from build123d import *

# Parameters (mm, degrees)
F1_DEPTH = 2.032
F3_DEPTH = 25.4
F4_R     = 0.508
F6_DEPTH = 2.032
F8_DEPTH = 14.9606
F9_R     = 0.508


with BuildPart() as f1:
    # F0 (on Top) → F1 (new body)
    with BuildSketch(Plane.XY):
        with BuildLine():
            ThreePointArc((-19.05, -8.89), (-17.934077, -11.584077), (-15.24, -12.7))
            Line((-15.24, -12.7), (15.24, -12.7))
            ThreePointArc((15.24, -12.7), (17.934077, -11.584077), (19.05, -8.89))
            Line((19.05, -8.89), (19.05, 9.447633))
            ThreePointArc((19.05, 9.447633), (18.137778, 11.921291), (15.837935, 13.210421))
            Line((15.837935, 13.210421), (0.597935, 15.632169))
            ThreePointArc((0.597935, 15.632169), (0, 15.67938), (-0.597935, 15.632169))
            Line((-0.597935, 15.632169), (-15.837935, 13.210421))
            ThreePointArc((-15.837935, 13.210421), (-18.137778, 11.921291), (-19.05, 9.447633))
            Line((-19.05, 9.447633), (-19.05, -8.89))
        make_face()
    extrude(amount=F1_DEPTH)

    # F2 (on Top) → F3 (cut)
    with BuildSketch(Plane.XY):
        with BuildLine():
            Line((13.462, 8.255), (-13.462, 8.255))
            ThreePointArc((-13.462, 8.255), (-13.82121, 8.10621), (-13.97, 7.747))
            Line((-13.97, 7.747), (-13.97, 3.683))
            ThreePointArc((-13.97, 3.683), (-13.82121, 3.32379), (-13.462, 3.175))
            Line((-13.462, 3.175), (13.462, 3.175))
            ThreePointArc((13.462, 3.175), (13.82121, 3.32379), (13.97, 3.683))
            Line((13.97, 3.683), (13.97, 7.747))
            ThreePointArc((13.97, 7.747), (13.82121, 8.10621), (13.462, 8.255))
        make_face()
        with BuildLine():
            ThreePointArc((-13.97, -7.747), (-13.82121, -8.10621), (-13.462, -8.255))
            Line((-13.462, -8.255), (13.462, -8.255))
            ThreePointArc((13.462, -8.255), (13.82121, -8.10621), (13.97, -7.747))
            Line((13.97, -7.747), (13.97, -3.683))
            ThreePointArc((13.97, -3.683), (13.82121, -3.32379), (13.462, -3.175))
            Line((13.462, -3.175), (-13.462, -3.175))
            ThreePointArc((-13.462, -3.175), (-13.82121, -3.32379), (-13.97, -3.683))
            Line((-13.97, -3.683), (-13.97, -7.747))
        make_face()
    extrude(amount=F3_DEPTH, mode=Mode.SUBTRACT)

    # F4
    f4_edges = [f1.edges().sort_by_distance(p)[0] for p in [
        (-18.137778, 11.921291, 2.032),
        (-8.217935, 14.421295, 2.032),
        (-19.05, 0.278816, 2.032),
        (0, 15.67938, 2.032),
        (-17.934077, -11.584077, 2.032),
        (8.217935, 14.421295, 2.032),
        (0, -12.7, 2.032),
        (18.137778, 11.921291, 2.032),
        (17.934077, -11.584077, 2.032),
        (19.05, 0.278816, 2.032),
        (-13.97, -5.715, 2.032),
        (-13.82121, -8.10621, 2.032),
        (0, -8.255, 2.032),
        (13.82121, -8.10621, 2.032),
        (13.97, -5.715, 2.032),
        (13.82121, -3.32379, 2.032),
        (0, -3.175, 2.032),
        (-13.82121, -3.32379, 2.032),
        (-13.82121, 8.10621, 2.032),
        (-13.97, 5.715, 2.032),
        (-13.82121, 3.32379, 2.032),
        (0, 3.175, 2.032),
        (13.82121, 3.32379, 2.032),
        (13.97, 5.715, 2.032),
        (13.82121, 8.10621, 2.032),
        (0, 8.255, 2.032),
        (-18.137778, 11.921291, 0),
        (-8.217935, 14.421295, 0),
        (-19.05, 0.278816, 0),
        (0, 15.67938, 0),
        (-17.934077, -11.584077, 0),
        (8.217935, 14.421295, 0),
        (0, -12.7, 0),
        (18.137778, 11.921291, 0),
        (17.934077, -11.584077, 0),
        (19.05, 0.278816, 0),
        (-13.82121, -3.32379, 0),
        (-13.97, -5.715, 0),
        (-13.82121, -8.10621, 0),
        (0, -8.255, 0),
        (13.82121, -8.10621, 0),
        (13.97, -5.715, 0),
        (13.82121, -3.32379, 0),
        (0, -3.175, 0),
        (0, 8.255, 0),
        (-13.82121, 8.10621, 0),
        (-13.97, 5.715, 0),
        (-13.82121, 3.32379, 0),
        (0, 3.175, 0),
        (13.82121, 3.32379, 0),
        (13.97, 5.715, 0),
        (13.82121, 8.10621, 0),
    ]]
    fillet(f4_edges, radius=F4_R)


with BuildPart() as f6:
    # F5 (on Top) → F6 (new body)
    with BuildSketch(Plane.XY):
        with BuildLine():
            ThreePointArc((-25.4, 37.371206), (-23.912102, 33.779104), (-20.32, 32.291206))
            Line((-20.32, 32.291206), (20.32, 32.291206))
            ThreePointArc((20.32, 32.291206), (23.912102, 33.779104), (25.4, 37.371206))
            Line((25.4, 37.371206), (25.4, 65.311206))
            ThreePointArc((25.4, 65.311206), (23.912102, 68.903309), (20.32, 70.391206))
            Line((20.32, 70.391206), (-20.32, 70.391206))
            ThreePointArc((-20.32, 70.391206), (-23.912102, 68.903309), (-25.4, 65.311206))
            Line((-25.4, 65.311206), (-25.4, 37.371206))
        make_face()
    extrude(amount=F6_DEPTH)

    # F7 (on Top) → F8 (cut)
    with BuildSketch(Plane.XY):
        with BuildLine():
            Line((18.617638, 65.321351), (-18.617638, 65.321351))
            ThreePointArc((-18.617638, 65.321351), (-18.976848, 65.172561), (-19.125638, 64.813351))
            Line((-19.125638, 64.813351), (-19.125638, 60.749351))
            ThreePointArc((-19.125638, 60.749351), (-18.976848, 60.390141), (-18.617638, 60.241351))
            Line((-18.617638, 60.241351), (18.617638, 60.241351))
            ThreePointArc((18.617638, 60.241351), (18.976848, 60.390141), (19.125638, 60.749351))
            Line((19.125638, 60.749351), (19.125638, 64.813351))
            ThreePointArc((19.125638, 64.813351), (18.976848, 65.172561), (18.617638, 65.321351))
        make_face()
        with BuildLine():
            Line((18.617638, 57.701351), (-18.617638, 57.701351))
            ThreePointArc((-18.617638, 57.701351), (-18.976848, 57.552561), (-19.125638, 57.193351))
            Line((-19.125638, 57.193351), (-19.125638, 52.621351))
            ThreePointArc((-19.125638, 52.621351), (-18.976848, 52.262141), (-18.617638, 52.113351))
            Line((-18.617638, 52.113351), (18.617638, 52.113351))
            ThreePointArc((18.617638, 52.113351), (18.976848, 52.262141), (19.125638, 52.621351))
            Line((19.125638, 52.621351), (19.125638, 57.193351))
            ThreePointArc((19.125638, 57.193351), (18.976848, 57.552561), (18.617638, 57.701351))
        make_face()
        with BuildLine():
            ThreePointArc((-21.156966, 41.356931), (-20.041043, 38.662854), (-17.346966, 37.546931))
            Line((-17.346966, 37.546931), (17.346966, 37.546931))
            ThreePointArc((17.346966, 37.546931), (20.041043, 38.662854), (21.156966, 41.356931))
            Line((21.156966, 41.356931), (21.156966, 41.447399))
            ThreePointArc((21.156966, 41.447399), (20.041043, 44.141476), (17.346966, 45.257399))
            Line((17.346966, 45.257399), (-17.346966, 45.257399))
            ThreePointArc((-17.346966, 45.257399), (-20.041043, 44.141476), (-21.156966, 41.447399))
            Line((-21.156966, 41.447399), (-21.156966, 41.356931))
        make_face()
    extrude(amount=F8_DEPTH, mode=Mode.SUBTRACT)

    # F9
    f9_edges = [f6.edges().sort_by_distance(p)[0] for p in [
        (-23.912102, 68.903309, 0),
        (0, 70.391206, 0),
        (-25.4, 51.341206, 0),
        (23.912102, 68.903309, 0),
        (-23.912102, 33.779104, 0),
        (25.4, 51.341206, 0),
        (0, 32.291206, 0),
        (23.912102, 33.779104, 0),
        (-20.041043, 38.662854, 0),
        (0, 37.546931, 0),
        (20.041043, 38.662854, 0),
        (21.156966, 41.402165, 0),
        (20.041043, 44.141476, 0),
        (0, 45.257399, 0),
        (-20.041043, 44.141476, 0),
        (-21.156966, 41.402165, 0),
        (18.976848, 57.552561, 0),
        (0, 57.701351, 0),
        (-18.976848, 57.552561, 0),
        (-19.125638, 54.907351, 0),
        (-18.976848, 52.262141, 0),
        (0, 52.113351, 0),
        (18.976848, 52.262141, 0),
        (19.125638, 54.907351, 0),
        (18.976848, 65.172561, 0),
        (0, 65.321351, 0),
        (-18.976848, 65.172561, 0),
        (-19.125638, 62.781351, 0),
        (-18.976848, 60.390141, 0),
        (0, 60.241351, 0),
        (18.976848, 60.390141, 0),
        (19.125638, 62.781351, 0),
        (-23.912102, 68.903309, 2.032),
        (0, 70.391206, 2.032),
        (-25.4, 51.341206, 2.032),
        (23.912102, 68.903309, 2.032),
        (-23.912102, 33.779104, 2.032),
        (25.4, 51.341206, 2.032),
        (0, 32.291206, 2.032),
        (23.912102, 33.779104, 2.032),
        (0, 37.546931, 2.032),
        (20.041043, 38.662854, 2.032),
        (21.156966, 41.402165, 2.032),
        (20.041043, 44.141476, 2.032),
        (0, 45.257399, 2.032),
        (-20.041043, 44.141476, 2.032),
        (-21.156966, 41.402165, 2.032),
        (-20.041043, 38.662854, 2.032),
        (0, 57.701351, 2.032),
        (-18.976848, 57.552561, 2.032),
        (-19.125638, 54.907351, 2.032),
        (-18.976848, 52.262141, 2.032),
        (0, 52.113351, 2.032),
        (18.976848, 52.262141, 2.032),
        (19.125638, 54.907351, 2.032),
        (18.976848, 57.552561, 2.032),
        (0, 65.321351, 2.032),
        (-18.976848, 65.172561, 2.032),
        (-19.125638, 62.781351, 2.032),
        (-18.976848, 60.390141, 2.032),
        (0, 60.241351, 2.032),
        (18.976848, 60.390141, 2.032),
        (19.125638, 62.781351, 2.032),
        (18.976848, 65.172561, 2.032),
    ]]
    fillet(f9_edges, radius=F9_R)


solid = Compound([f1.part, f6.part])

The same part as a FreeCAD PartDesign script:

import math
import FreeCAD as App
import Part
import Sketcher

V = App.Vector
Q = App.Units.Quantity


def edges_at(feature, points):
    """Names of the edges that pass closest to the given points."""
    edges = feature.Shape.Edges
    near = lambda p: min(range(len(edges)), key=lambda i: edges[i].distToShape(Part.Vertex(*p))[0])
    return sorted({f"Edge{near(p) + 1}" for p in points})

doc = App.newDocument("Part")
body = doc.addObject("PartDesign::Body", "Body")

# Sketch on XY plane
sketch1 = body.newObject("Sketcher::SketchObject", "Sketch")
sketch1.AttachmentSupport = (doc.getObject("XY_Plane"), [""])
sketch1.MapMode = "FlatFace"
sketch1.addGeometry(Part.ArcOfCircle(Part.Circle(V(-15.2, -8.9, 0), V(0, 0, 1), 3.8), math.radians(180), math.radians(270)), False)
sketch1.addGeometry(Part.LineSegment(V(-15.2, -12.7, 0), V(15.2, -12.7, 0)), False)
sketch1.addGeometry(Part.ArcOfCircle(Part.Circle(V(15.2, -8.9, 0), V(0, 0, 1), 3.8), math.radians(-90), math.radians(0)), False)
sketch1.addGeometry(Part.LineSegment(V(19.1, -8.9, 0), V(19.1, 9.4, 0)), False)
sketch1.addGeometry(Part.ArcOfCircle(Part.Circle(V(15.2, 9.4, 0), V(0, 0, 1), 3.8), math.radians(0), math.radians(81)), False)
sketch1.addGeometry(Part.LineSegment(V(15.8, 13.2, 0), V(0.6, 15.6, 0)), False)
sketch1.addGeometry(Part.ArcOfCircle(Part.Circle(V(0, 11.9, 0), V(0, 0, 1), 3.8), math.radians(80.97), math.radians(99.03)), False)
sketch1.addGeometry(Part.LineSegment(V(-0.6, 15.6, 0), V(-15.8, 13.2, 0)), False)
sketch1.addGeometry(Part.ArcOfCircle(Part.Circle(V(-15.2, 9.4, 0), V(0, 0, 1), 3.8), math.radians(99), math.radians(180)), False)
sketch1.addGeometry(Part.LineSegment(V(-19.1, 9.4, 0), V(-19.1, -8.9, 0)), False)
sketch1.addConstraint(Sketcher.Constraint("Tangent", 0, 2, 1, 1))
sketch1.addConstraint(Sketcher.Constraint("Tangent", 1, 2, 2, 1))
sketch1.addConstraint(Sketcher.Constraint("Tangent", 2, 2, 3, 1))
sketch1.addConstraint(Sketcher.Constraint("Tangent", 3, 2, 4, 1))
sketch1.addConstraint(Sketcher.Constraint("Tangent", 4, 2, 5, 1))
sketch1.addConstraint(Sketcher.Constraint("Coincident", 5, 2, 6, 1))
sketch1.addConstraint(Sketcher.Constraint("Coincident", 6, 2, 7, 1))
sketch1.addConstraint(Sketcher.Constraint("Tangent", 7, 2, 8, 1))
sketch1.addConstraint(Sketcher.Constraint("Tangent", 8, 2, 9, 1))
sketch1.addConstraint(Sketcher.Constraint("Tangent", 9, 2, 0, 1))
sketch1.addConstraint(Sketcher.Constraint("Horizontal", 1))
sketch1.addConstraint(Sketcher.Constraint("Vertical", 3))
sketch1.addConstraint(Sketcher.Constraint("Vertical", 9))
sketch1.addConstraint(Sketcher.Constraint("Equal", 0, 2))
sketch1.addConstraint(Sketcher.Constraint("Equal", 2, 4))
sketch1.addConstraint(Sketcher.Constraint("Equal", 4, 8))
sketch1.addConstraint(Sketcher.Constraint("Symmetric", 4, 3, 8, 3, -2))
sketch1.addConstraint(Sketcher.Constraint("Symmetric", 5, 2, 6, 2, -2))
sketch1.addConstraint(Sketcher.Constraint("Radius", 0, Q("0.15 in")))
sketch1.addConstraint(Sketcher.Constraint("DistanceX", 1, 1, 1, 2, Q("1.2 in")))
sketch1.addConstraint(Sketcher.Constraint("DistanceY", 0, 2, -1, 1, Q("0.5 in")))
sketch1.addConstraint(Sketcher.Constraint("DistanceX", 5, 2, 4, 2, Q("0.6 in")))
sketch1.addConstraint(Sketcher.Constraint("Radius", 6, 3.810078))
sketch1.addConstraint(Sketcher.Constraint("DistanceY", 6, 3, 4, 2, Q("0.0527999 in")))
sketch1.addConstraint(Sketcher.Constraint("DistanceY", 3, 1, 3, 2, 18.337633))
pad1 = body.newObject("PartDesign::Pad", "Pad")
pad1.Profile = sketch1
pad1.Length = Q("0.08 in")

# Sketch on XY plane
sketch2 = body.newObject("Sketcher::SketchObject", "Sketch001")
sketch2.AttachmentSupport = (doc.getObject("XY_Plane"), [""])
sketch2.MapMode = "FlatFace"
sketch2.addGeometry(Part.LineSegment(V(13.5, 8.3, 0), V(-13.5, 8.3, 0)), False)
sketch2.addGeometry(Part.ArcOfCircle(Part.Circle(V(-13.5, 7.7, 0), V(0, 0, 1), 0.5), math.radians(90), math.radians(180)), False)
sketch2.addGeometry(Part.LineSegment(V(-14, 7.7, 0), V(-14, 3.7, 0)), False)
sketch2.addGeometry(Part.ArcOfCircle(Part.Circle(V(-13.5, 3.7, 0), V(0, 0, 1), 0.5), math.radians(-180), math.radians(-90)), False)
sketch2.addGeometry(Part.LineSegment(V(-13.5, 3.2, 0), V(13.5, 3.2, 0)), False)
sketch2.addGeometry(Part.ArcOfCircle(Part.Circle(V(13.5, 3.7, 0), V(0, 0, 1), 0.5), math.radians(-90), math.radians(0)), False)
sketch2.addGeometry(Part.LineSegment(V(14, 3.7, 0), V(14, 7.7, 0)), False)
sketch2.addGeometry(Part.ArcOfCircle(Part.Circle(V(13.5, 7.7, 0), V(0, 0, 1), 0.5), math.radians(0), math.radians(90)), False)
sketch2.addGeometry(Part.ArcOfCircle(Part.Circle(V(-13.5, -7.7, 0), V(0, 0, 1), 0.5), math.radians(-180), math.radians(-90)), False)
sketch2.addGeometry(Part.LineSegment(V(-13.5, -8.3, 0), V(13.5, -8.3, 0)), False)
sketch2.addGeometry(Part.ArcOfCircle(Part.Circle(V(13.5, -7.7, 0), V(0, 0, 1), 0.5), math.radians(-90), math.radians(0)), False)
sketch2.addGeometry(Part.LineSegment(V(14, -7.7, 0), V(14, -3.7, 0)), False)
sketch2.addGeometry(Part.ArcOfCircle(Part.Circle(V(13.5, -3.7, 0), V(0, 0, 1), 0.5), math.radians(0), math.radians(90)), False)
sketch2.addGeometry(Part.LineSegment(V(13.5, -3.2, 0), V(-13.5, -3.2, 0)), False)
sketch2.addGeometry(Part.ArcOfCircle(Part.Circle(V(-13.5, -3.7, 0), V(0, 0, 1), 0.5), math.radians(90), math.radians(180)), False)
sketch2.addGeometry(Part.LineSegment(V(-14, -3.7, 0), V(-14, -7.7, 0)), False)
sketch2.addConstraint(Sketcher.Constraint("Tangent", 0, 2, 1, 1))
sketch2.addConstraint(Sketcher.Constraint("Tangent", 1, 2, 2, 1))
sketch2.addConstraint(Sketcher.Constraint("Tangent", 2, 2, 3, 1))
sketch2.addConstraint(Sketcher.Constraint("Tangent", 3, 2, 4, 1))
sketch2.addConstraint(Sketcher.Constraint("Tangent", 4, 2, 5, 1))
sketch2.addConstraint(Sketcher.Constraint("Tangent", 5, 2, 6, 1))
sketch2.addConstraint(Sketcher.Constraint("Tangent", 6, 2, 7, 1))
sketch2.addConstraint(Sketcher.Constraint("Tangent", 7, 2, 0, 1))
sketch2.addConstraint(Sketcher.Constraint("Tangent", 8, 2, 9, 1))
sketch2.addConstraint(Sketcher.Constraint("Tangent", 9, 2, 10, 1))
sketch2.addConstraint(Sketcher.Constraint("Tangent", 10, 2, 11, 1))
sketch2.addConstraint(Sketcher.Constraint("Tangent", 11, 2, 12, 1))
sketch2.addConstraint(Sketcher.Constraint("Tangent", 12, 2, 13, 1))
sketch2.addConstraint(Sketcher.Constraint("Tangent", 13, 2, 14, 1))
sketch2.addConstraint(Sketcher.Constraint("Tangent", 14, 2, 15, 1))
sketch2.addConstraint(Sketcher.Constraint("Tangent", 15, 2, 8, 1))
sketch2.addConstraint(Sketcher.Constraint("Horizontal", 0))
sketch2.addConstraint(Sketcher.Constraint("Vertical", 2))
sketch2.addConstraint(Sketcher.Constraint("Horizontal", 4))
sketch2.addConstraint(Sketcher.Constraint("Vertical", 6))
sketch2.addConstraint(Sketcher.Constraint("Horizontal", 9))
sketch2.addConstraint(Sketcher.Constraint("Vertical", 11))
sketch2.addConstraint(Sketcher.Constraint("Horizontal", 13))
sketch2.addConstraint(Sketcher.Constraint("Vertical", 15))
sketch2.addConstraint(Sketcher.Constraint("Equal", 1, 3))
sketch2.addConstraint(Sketcher.Constraint("Equal", 3, 5))
sketch2.addConstraint(Sketcher.Constraint("Equal", 5, 7))
sketch2.addConstraint(Sketcher.Constraint("Equal", 7, 8))
sketch2.addConstraint(Sketcher.Constraint("Equal", 8, 10))
sketch2.addConstraint(Sketcher.Constraint("Equal", 10, 12))
sketch2.addConstraint(Sketcher.Constraint("Equal", 12, 14))
sketch2.addConstraint(Sketcher.Constraint("Symmetric", 7, 3, 8, 3, -1, 1))
sketch2.addConstraint(Sketcher.Constraint("Symmetric", 3, 3, 12, 3, -1, 1))
sketch2.addConstraint(Sketcher.Constraint("Vertical", 3, 3, 8, 3))
sketch2.addConstraint(Sketcher.Constraint("Radius", 1, Q("0.02 in")))
sketch2.addConstraint(Sketcher.Constraint("DistanceX", 0, 2, 0, 1, Q("1.06 in")))
sketch2.addConstraint(Sketcher.Constraint("DistanceY", 2, 2, 2, 1, Q("0.16 in")))
sketch2.addConstraint(Sketcher.Constraint("DistanceY", 8, 3, 3, 3, Q("0.45 in")))
pocket1 = body.newObject("PartDesign::Pocket", "Pocket")
pocket1.Profile = sketch2
pocket1.Length = Q("1 in")
pocket1.Reversed = True
doc.recompute()

fillet = body.newObject("PartDesign::Fillet", "Fillet")
fillet.Base = (pocket1, edges_at(pocket1, [
    (-18.138, 11.921, 2.032),
    (-8.218, 14.421, 2.032),
    (-19.05, 0.279, 2.032),
    (0, 15.679, 2.032),
    (-17.934, -11.584, 2.032),
    (8.218, 14.421, 2.032),
    (0, -12.7, 2.032),
    (18.138, 11.921, 2.032),
    (17.934, -11.584, 2.032),
    (19.05, 0.279, 2.032),
    (-13.97, -5.715, 2.032),
    (-13.821, -8.106, 2.032),
    (0, -8.255, 2.032),
    (13.821, -8.106, 2.032),
    (13.97, -5.715, 2.032),
    (13.821, -3.324, 2.032),
    (0, -3.175, 2.032),
    (-13.821, -3.324, 2.032),
    (-13.821, 8.106, 2.032),
    (-13.97, 5.715, 2.032),
    (-13.821, 3.324, 2.032),
    (0, 3.175, 2.032),
    (13.821, 3.324, 2.032),
    (13.97, 5.715, 2.032),
    (13.821, 8.106, 2.032),
    (0, 8.255, 2.032),
    (-18.138, 11.921, 0),
    (-8.218, 14.421, 0),
    (-19.05, 0.279, 0),
    (0, 15.679, 0),
    (-17.934, -11.584, 0),
    (8.218, 14.421, 0),
    (0, -12.7, 0),
    (18.138, 11.921, 0),
    (17.934, -11.584, 0),
    (19.05, 0.279, 0),
    (-13.821, -3.324, 0),
    (-13.97, -5.715, 0),
    (-13.821, -8.106, 0),
    (0, -8.255, 0),
    (13.821, -8.106, 0),
    (13.97, -5.715, 0),
    (13.821, -3.324, 0),
    (0, -3.175, 0),
    (0, 8.255, 0),
    (-13.821, 8.106, 0),
    (-13.97, 5.715, 0),
    (-13.821, 3.324, 0),
    (0, 3.175, 0),
    (13.821, 3.324, 0),
    (13.97, 5.715, 0),
    (13.821, 8.106, 0),
]))
fillet.Radius = Q("0.02 in")
body2 = doc.addObject("PartDesign::Body", "Body001")

# Sketch on XY plane
sketch3 = body2.newObject("Sketcher::SketchObject", "Sketch002")
sketch3.AttachmentSupport = (doc.getObject("XY_Plane001"), [""])
sketch3.MapMode = "FlatFace"
sketch3.addGeometry(Part.ArcOfCircle(Part.Circle(V(-20, 37, 0), V(0, 0, 1), 5), math.radians(-180), math.radians(-90)), False)
sketch3.addGeometry(Part.LineSegment(V(-20, 32, 0), V(20, 32, 0)), False)
sketch3.addGeometry(Part.ArcOfCircle(Part.Circle(V(20, 37, 0), V(0, 0, 1), 5), math.radians(-90), math.radians(0)), False)
sketch3.addGeometry(Part.LineSegment(V(25, 37, 0), V(25, 65, 0)), False)
sketch3.addGeometry(Part.ArcOfCircle(Part.Circle(V(20, 65, 0), V(0, 0, 1), 5), math.radians(0), math.radians(90)), False)
sketch3.addGeometry(Part.LineSegment(V(20, 70, 0), V(-20, 70, 0)), False)
sketch3.addGeometry(Part.ArcOfCircle(Part.Circle(V(-20, 65, 0), V(0, 0, 1), 5), math.radians(90), math.radians(180)), False)
sketch3.addGeometry(Part.LineSegment(V(-25, 65, 0), V(-25, 37, 0)), False)
sketch3.addConstraint(Sketcher.Constraint("Tangent", 0, 2, 1, 1))
sketch3.addConstraint(Sketcher.Constraint("Tangent", 1, 2, 2, 1))
sketch3.addConstraint(Sketcher.Constraint("Tangent", 2, 2, 3, 1))
sketch3.addConstraint(Sketcher.Constraint("Tangent", 3, 2, 4, 1))
sketch3.addConstraint(Sketcher.Constraint("Tangent", 4, 2, 5, 1))
sketch3.addConstraint(Sketcher.Constraint("Tangent", 5, 2, 6, 1))
sketch3.addConstraint(Sketcher.Constraint("Tangent", 6, 2, 7, 1))
sketch3.addConstraint(Sketcher.Constraint("Tangent", 7, 2, 0, 1))
sketch3.addConstraint(Sketcher.Constraint("Horizontal", 1))
sketch3.addConstraint(Sketcher.Constraint("Vertical", 3))
sketch3.addConstraint(Sketcher.Constraint("Horizontal", 5))
sketch3.addConstraint(Sketcher.Constraint("Vertical", 7))
sketch3.addConstraint(Sketcher.Constraint("Equal", 0, 2))
sketch3.addConstraint(Sketcher.Constraint("Equal", 2, 4))
sketch3.addConstraint(Sketcher.Constraint("Equal", 4, 6))
sketch3.addConstraint(Sketcher.Constraint("Radius", 0, Q("0.2000001 in")))
sketch3.addConstraint(Sketcher.Constraint("DistanceX", 1, 1, 1, 2, Q("1.6 in")))
sketch3.addConstraint(Sketcher.Constraint("DistanceY", 3, 1, 3, 2, Q("1.1 in")))
sketch3.addConstraint(Sketcher.Constraint("DistanceX", -1, 1, 2, 2, Q("1 in")))
sketch3.addConstraint(Sketcher.Constraint("DistanceY", -1, 1, 0, 3, 37.371208))
pad2 = body2.newObject("PartDesign::Pad", "Pad001")
pad2.Profile = sketch3
pad2.Length = Q("0.08 in")

# Sketch on XY plane
sketch4 = body2.newObject("Sketcher::SketchObject", "Sketch003")
sketch4.AttachmentSupport = (doc.getObject("XY_Plane001"), [""])
sketch4.MapMode = "FlatFace"
sketch4.addGeometry(Part.LineSegment(V(18.62, 65.32, 0), V(-18.62, 65.32, 0)), False)
sketch4.addGeometry(Part.ArcOfCircle(Part.Circle(V(-18.62, 64.81, 0), V(0, 0, 1), 0.51), math.radians(90), math.radians(180)), False)
sketch4.addGeometry(Part.LineSegment(V(-19.13, 64.81, 0), V(-19.13, 60.75, 0)), False)
sketch4.addGeometry(Part.ArcOfCircle(Part.Circle(V(-18.62, 60.75, 0), V(0, 0, 1), 0.51), math.radians(-180), math.radians(-90)), False)
sketch4.addGeometry(Part.LineSegment(V(-18.62, 60.24, 0), V(18.62, 60.24, 0)), False)
sketch4.addGeometry(Part.ArcOfCircle(Part.Circle(V(18.62, 60.75, 0), V(0, 0, 1), 0.51), math.radians(-90), math.radians(0)), False)
sketch4.addGeometry(Part.LineSegment(V(19.13, 60.75, 0), V(19.13, 64.81, 0)), False)
sketch4.addGeometry(Part.ArcOfCircle(Part.Circle(V(18.62, 64.81, 0), V(0, 0, 1), 0.51), math.radians(0), math.radians(90)), False)
sketch4.addGeometry(Part.LineSegment(V(18.62, 57.7, 0), V(-18.62, 57.7, 0)), False)
sketch4.addGeometry(Part.ArcOfCircle(Part.Circle(V(-18.62, 57.19, 0), V(0, 0, 1), 0.51), math.radians(90), math.radians(180)), False)
sketch4.addGeometry(Part.LineSegment(V(-19.13, 57.19, 0), V(-19.13, 52.62, 0)), False)
sketch4.addGeometry(Part.ArcOfCircle(Part.Circle(V(-18.62, 52.62, 0), V(0, 0, 1), 0.51), math.radians(-180), math.radians(-90)), False)
sketch4.addGeometry(Part.LineSegment(V(-18.62, 52.11, 0), V(18.62, 52.11, 0)), False)
sketch4.addGeometry(Part.ArcOfCircle(Part.Circle(V(18.62, 52.62, 0), V(0, 0, 1), 0.51), math.radians(-90), math.radians(0)), False)
sketch4.addGeometry(Part.LineSegment(V(19.13, 52.62, 0), V(19.13, 57.19, 0)), False)
sketch4.addGeometry(Part.ArcOfCircle(Part.Circle(V(18.62, 57.19, 0), V(0, 0, 1), 0.51), math.radians(0), math.radians(90)), False)
sketch4.addGeometry(Part.ArcOfCircle(Part.Circle(V(-17.35, 41.36, 0), V(0, 0, 1), 3.81), math.radians(180), math.radians(270)), False)
sketch4.addGeometry(Part.LineSegment(V(-17.35, 37.55, 0), V(17.35, 37.55, 0)), False)
sketch4.addGeometry(Part.ArcOfCircle(Part.Circle(V(17.35, 41.36, 0), V(0, 0, 1), 3.81), math.radians(-90), math.radians(0)), False)
sketch4.addGeometry(Part.LineSegment(V(21.16, 41.36, 0), V(21.16, 41.45, 0)), False)
sketch4.addGeometry(Part.ArcOfCircle(Part.Circle(V(17.35, 41.45, 0), V(0, 0, 1), 3.81), math.radians(0), math.radians(90)), False)
sketch4.addGeometry(Part.LineSegment(V(17.35, 45.26, 0), V(-17.35, 45.26, 0)), False)
sketch4.addGeometry(Part.ArcOfCircle(Part.Circle(V(-17.35, 41.45, 0), V(0, 0, 1), 3.81), math.radians(90), math.radians(180)), False)
sketch4.addGeometry(Part.LineSegment(V(-21.16, 41.45, 0), V(-21.16, 41.36, 0)), False)
sketch4.addConstraint(Sketcher.Constraint("Tangent", 0, 2, 1, 1))
sketch4.addConstraint(Sketcher.Constraint("Tangent", 1, 2, 2, 1))
sketch4.addConstraint(Sketcher.Constraint("Tangent", 2, 2, 3, 1))
sketch4.addConstraint(Sketcher.Constraint("Tangent", 3, 2, 4, 1))
sketch4.addConstraint(Sketcher.Constraint("Tangent", 4, 2, 5, 1))
sketch4.addConstraint(Sketcher.Constraint("Tangent", 5, 2, 6, 1))
sketch4.addConstraint(Sketcher.Constraint("Tangent", 6, 2, 7, 1))
sketch4.addConstraint(Sketcher.Constraint("Tangent", 7, 2, 0, 1))
sketch4.addConstraint(Sketcher.Constraint("Tangent", 8, 2, 9, 1))
sketch4.addConstraint(Sketcher.Constraint("Tangent", 9, 2, 10, 1))
sketch4.addConstraint(Sketcher.Constraint("Tangent", 10, 2, 11, 1))
sketch4.addConstraint(Sketcher.Constraint("Tangent", 11, 2, 12, 1))
sketch4.addConstraint(Sketcher.Constraint("Tangent", 12, 2, 13, 1))
sketch4.addConstraint(Sketcher.Constraint("Tangent", 13, 2, 14, 1))
sketch4.addConstraint(Sketcher.Constraint("Tangent", 14, 2, 15, 1))
sketch4.addConstraint(Sketcher.Constraint("Tangent", 15, 2, 8, 1))
sketch4.addConstraint(Sketcher.Constraint("Tangent", 16, 2, 17, 1))
sketch4.addConstraint(Sketcher.Constraint("Tangent", 17, 2, 18, 1))
sketch4.addConstraint(Sketcher.Constraint("Tangent", 18, 2, 19, 1))
sketch4.addConstraint(Sketcher.Constraint("Tangent", 19, 2, 20, 1))
sketch4.addConstraint(Sketcher.Constraint("Tangent", 20, 2, 21, 1))
sketch4.addConstraint(Sketcher.Constraint("Tangent", 21, 2, 22, 1))
sketch4.addConstraint(Sketcher.Constraint("Tangent", 22, 2, 23, 1))
sketch4.addConstraint(Sketcher.Constraint("Tangent", 23, 2, 16, 1))
sketch4.addConstraint(Sketcher.Constraint("Horizontal", 0))
sketch4.addConstraint(Sketcher.Constraint("Vertical", 2))
sketch4.addConstraint(Sketcher.Constraint("Horizontal", 4))
sketch4.addConstraint(Sketcher.Constraint("Vertical", 6))
sketch4.addConstraint(Sketcher.Constraint("Horizontal", 8))
sketch4.addConstraint(Sketcher.Constraint("Vertical", 10))
sketch4.addConstraint(Sketcher.Constraint("Horizontal", 12))
sketch4.addConstraint(Sketcher.Constraint("Vertical", 14))
sketch4.addConstraint(Sketcher.Constraint("Horizontal", 17))
sketch4.addConstraint(Sketcher.Constraint("Vertical", 19))
sketch4.addConstraint(Sketcher.Constraint("Horizontal", 21))
sketch4.addConstraint(Sketcher.Constraint("Vertical", 23))
sketch4.addConstraint(Sketcher.Constraint("Equal", 1, 3))
sketch4.addConstraint(Sketcher.Constraint("Equal", 3, 5))
sketch4.addConstraint(Sketcher.Constraint("Equal", 5, 7))
sketch4.addConstraint(Sketcher.Constraint("Equal", 7, 9))
sketch4.addConstraint(Sketcher.Constraint("Equal", 9, 11))
sketch4.addConstraint(Sketcher.Constraint("Equal", 11, 13))
sketch4.addConstraint(Sketcher.Constraint("Equal", 13, 15))
sketch4.addConstraint(Sketcher.Constraint("Equal", 16, 18))
sketch4.addConstraint(Sketcher.Constraint("Equal", 18, 20))
sketch4.addConstraint(Sketcher.Constraint("Equal", 20, 22))
sketch4.addConstraint(Sketcher.Constraint("Vertical", 3, 3, 9, 3))
sketch4.addConstraint(Sketcher.Constraint("Vertical", 7, 3, 13, 3))
sketch4.addConstraint(Sketcher.Constraint("Radius", 1, Q("0.02 in")))
sketch4.addConstraint(Sketcher.Constraint("Radius", 16, Q("0.15 in")))
sketch4.addConstraint(Sketcher.Constraint("DistanceY", 2, 2, 2, 1, Q("0.16 in")))
sketch4.addConstraint(Sketcher.Constraint("DistanceY", 10, 2, 10, 1, Q("0.18 in")))
sketch4.addConstraint(Sketcher.Constraint("DistanceY", 9, 3, 1, 3, Q("0.3 in")))
sketch4.addConstraint(Sketcher.Constraint("DistanceX", 17, 1, 17, 2, 34.693932))
sketch4.addConstraint(Sketcher.Constraint("DistanceY", -1, 1, 20, 3, 41.4474))
sketch4.addConstraint(Sketcher.Constraint("DistanceX", 0, 2, 0, 1, 37.235276))
sketch4.addConstraint(Sketcher.Constraint("DistanceY", 19, 1, 19, 2, 0.090468))
sketch4.addConstraint(Sketcher.Constraint("DistanceY", -1, 1, 1, 3, 64.81335))
sketch4.addConstraint(Sketcher.Constraint("DistanceX", 11, 3, 16, 3, 1.270671))
sketch4.addConstraint(Sketcher.Constraint("DistanceX", 1, 3, -1, 1, 18.617637))
pocket2 = body2.newObject("PartDesign::Pocket", "Pocket001")
pocket2.Profile = sketch4
pocket2.Length = Q("0.589 in")
pocket2.Reversed = True
doc.recompute()

fillet2 = body2.newObject("PartDesign::Fillet", "Fillet001")
fillet2.Base = (pocket2, edges_at(pocket2, [
    (-23.912, 68.903, 0),
    (0, 70.391, 0),
    (-25.4, 51.341, 0),
    (23.912, 68.903, 0),
    (-23.912, 33.779, 0),
    (25.4, 51.341, 0),
    (0, 32.291, 0),
    (23.912, 33.779, 0),
    (-20.041, 38.663, 0),
    (0, 37.547, 0),
    (20.041, 38.663, 0),
    (21.157, 41.402, 0),
    (20.041, 44.141, 0),
    (0, 45.257, 0),
    (-20.041, 44.141, 0),
    (-21.157, 41.402, 0),
    (18.977, 57.553, 0),
    (0, 57.701, 0),
    (-18.977, 57.553, 0),
    (-19.126, 54.907, 0),
    (-18.977, 52.262, 0),
    (0, 52.113, 0),
    (18.977, 52.262, 0),
    (19.126, 54.907, 0),
    (18.977, 65.173, 0),
    (0, 65.321, 0),
    (-18.977, 65.173, 0),
    (-19.126, 62.781, 0),
    (-18.977, 60.39, 0),
    (0, 60.241, 0),
    (18.977, 60.39, 0),
    (19.126, 62.781, 0),
    (-23.912, 68.903, 2.032),
    (0, 70.391, 2.032),
    (-25.4, 51.341, 2.032),
    (23.912, 68.903, 2.032),
    (-23.912, 33.779, 2.032),
    (25.4, 51.341, 2.032),
    (0, 32.291, 2.032),
    (23.912, 33.779, 2.032),
    (0, 37.547, 2.032),
    (20.041, 38.663, 2.032),
    (21.157, 41.402, 2.032),
    (20.041, 44.141, 2.032),
    (0, 45.257, 2.032),
    (-20.041, 44.141, 2.032),
    (-21.157, 41.402, 2.032),
    (-20.041, 38.663, 2.032),
    (0, 57.701, 2.032),
    (-18.977, 57.553, 2.032),
    (-19.126, 54.907, 2.032),
    (-18.977, 52.262, 2.032),
    (0, 52.113, 2.032),
    (18.977, 52.262, 2.032),
    (19.126, 54.907, 2.032),
    (18.977, 57.553, 2.032),
    (0, 65.321, 2.032),
    (-18.977, 65.173, 2.032),
    (-19.126, 62.781, 2.032),
    (-18.977, 60.39, 2.032),
    (0, 60.241, 2.032),
    (18.977, 60.39, 2.032),
    (19.126, 62.781, 2.032),
    (18.977, 65.173, 2.032),
]))
fillet2.Radius = Q("0.02 in")

doc.recompute()
